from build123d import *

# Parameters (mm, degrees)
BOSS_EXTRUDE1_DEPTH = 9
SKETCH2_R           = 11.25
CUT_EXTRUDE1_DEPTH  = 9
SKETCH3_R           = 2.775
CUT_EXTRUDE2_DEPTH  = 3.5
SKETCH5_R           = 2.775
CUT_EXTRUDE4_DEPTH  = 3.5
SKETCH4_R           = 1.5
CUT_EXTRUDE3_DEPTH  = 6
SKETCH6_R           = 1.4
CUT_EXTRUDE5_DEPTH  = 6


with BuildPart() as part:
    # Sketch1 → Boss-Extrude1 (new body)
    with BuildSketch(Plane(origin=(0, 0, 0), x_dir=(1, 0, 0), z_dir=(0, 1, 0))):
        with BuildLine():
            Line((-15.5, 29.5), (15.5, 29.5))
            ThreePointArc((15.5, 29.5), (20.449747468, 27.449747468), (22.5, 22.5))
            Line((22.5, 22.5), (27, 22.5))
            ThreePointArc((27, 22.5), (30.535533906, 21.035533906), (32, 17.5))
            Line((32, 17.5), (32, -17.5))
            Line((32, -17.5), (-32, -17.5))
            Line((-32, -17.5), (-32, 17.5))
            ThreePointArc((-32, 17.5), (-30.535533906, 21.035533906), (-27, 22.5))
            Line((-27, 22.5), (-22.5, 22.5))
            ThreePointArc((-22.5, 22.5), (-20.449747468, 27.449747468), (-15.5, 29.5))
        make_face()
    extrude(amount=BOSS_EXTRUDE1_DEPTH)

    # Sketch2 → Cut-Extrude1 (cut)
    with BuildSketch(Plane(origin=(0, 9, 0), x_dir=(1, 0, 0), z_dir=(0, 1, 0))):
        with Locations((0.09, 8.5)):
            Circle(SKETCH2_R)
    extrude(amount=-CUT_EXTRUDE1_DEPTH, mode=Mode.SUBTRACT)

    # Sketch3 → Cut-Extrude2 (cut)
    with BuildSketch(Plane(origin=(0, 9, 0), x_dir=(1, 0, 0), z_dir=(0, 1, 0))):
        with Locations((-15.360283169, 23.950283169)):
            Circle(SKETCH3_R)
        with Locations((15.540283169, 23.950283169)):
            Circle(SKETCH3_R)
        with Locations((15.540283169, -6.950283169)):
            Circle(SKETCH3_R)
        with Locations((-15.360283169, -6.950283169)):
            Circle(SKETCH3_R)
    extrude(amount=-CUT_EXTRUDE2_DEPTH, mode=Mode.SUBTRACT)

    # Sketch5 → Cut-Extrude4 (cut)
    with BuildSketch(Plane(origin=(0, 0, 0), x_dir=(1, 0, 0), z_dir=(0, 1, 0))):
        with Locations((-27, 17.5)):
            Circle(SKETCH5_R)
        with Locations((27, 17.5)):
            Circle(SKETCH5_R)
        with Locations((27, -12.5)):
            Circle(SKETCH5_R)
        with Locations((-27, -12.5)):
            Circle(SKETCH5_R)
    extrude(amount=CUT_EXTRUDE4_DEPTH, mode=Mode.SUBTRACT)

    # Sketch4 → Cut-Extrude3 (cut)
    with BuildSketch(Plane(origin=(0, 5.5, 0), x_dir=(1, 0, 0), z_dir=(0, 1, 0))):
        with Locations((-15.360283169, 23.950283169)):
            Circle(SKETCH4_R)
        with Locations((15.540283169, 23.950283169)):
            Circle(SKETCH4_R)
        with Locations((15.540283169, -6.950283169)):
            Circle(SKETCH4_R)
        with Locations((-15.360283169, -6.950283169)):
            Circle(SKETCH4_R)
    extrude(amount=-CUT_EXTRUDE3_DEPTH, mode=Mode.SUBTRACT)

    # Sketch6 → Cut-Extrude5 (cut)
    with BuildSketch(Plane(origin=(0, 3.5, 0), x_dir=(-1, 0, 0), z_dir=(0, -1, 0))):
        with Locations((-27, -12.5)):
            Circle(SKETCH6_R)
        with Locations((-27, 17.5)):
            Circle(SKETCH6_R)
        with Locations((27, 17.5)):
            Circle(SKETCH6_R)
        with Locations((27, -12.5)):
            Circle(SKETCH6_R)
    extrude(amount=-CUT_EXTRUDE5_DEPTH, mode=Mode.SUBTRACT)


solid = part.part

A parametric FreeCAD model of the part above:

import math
import FreeCAD as App
import Part
import Sketcher
from FreeCAD import Vector
Q = App.Units.Quantity

doc = App.newDocument("Part")
params = doc.addObject("Spreadsheet::Sheet", "Params")
for row, (alias, value) in enumerate([
    ("sketch1_radius", "7 mm"),
    ("sketch1_radius2", "5 mm"),
    ("sketch1_width", "31 mm"),
    ("sketch1_width2", "64 mm"),
    ("sketch1_height", "35 mm"),
    ("pad1_length", "9 mm"),
    ("sketch2_diameter", "22.5 mm"),
    ("pocket1_length", "9 mm"),
    ("sketch3_diameter", "5.55 mm"),
    ("pocket2_length", "3.5 mm"),
    ("sketch4_diameter", "5.55 mm"),
    ("pocket3_length", "3.5 mm"),
    ("sketch5_diameter", "3 mm"),
    ("pocket4_length", "6 mm"),
    ("sketch6_diameter", "2.8 mm"),
    ("pocket5_length", "6 mm"),
], start=1):
    params.set(f"A{row}", alias)
    params.set(f"B{row}", "=" + value)
    params.setAlias(f"B{row}", alias)

body = doc.addObject("PartDesign::Body", "Body")

# Sketch on XZ plane
sketch1 = doc.addObject("Sketcher::SketchObject", "Sketch")
body.addObject(sketch1)
sketch1.AttachmentSupport = (doc.XZ_Plane, [""])
sketch1.MapMode = "FlatFace"
sketch1.addGeometry([
    Part.LineSegment(Vector(15.5, -29.5, 0), Vector(-15.5, -29.5, 0)),  # 0
    Part.ArcOfCircle(Part.Circle(Vector(-15.5, -22.5, 0), Vector(0, 0, 1), 7), math.radians(-180), math.radians(-90)),  # 1
    Part.LineSegment(Vector(-22.5, -22.5, 0), Vector(-27, -22.5, 0)),  # 2
    Part.ArcOfCircle(Part.Circle(Vector(-27, -17.5, 0), Vector(0, 0, 1), 5), math.radians(180), math.radians(270)),  # 3
    Part.LineSegment(Vector(-32, -17.5, 0), Vector(-32, 17.5, 0)),  # 4
    Part.LineSegment(Vector(-32, 17.5, 0), Vector(32, 17.5, 0)),  # 5
    Part.LineSegment(Vector(32, 17.5, 0), Vector(32, -17.5, 0)),  # 6
    Part.ArcOfCircle(Part.Circle(Vector(27, -17.5, 0), Vector(0, 0, 1), 5), math.radians(-90), math.radians(0)),  # 7
    Part.LineSegment(Vector(27, -22.5, 0), Vector(22.5, -22.5, 0)),  # 8
    Part.ArcOfCircle(Part.Circle(Vector(15.5, -22.5, 0), Vector(0, 0, 1), 7), math.radians(-90), math.radians(0)),  # 9
], False)
sketch1.addConstraint([
    Sketcher.Constraint("Tangent", 0, 2, 1, 2),
    Sketcher.Constraint("Coincident", 1, 1, 2, 1),
    Sketcher.Constraint("Tangent", 2, 2, 3, 2),
    Sketcher.Constraint("Tangent", 3, 1, 4, 1),
    Sketcher.Constraint("Coincident", 4, 2, 5, 1),
    Sketcher.Constraint("Coincident", 5, 2, 6, 1),
    Sketcher.Constraint("Tangent", 6, 2, 7, 2),
    Sketcher.Constraint("Tangent", 7, 1, 8, 1),
    Sketcher.Constraint("Coincident", 8, 2, 9, 2),
    Sketcher.Constraint("Tangent", 9, 1, 0, 1),
    Sketcher.Constraint("Horizontal", 0),
    Sketcher.Constraint("Horizontal", 2),
    Sketcher.Constraint("Vertical", 4),
    Sketcher.Constraint("Horizontal", 5),
    Sketcher.Constraint("Vertical", 6),
    Sketcher.Constraint("Horizontal", 8),
    Sketcher.Constraint("Equal", 3, 7),
    Sketcher.Constraint("Equal", 1, 9),
    Sketcher.Constraint("Symmetric", 3, 1, 5, 2, -1, 1),
    Sketcher.Constraint("Symmetric", 1, 1, 8, 2, -2),
    Sketcher.Constraint("Horizontal", 9, 3, 1, 1),
    Sketcher.Constraint("Radius", 1, Q("7 mm")),
    Sketcher.Constraint("Radius", 3, Q("5 mm")),
    Sketcher.Constraint("DistanceX", 0, 2, 0, 1, Q("31 mm")),
    Sketcher.Constraint("DistanceX", 5, 1, 5, 2, Q("64 mm")),
    Sketcher.Constraint("DistanceY", 4, 1, 4, 2, Q("35 mm")),
])
sketch1.setExpression("Constraints[21]", "Params.sketch1_radius")
sketch1.setExpression("Constraints[22]", "Params.sketch1_radius2")
sketch1.setExpression("Constraints[23]", "Params.sketch1_width")
sketch1.setExpression("Constraints[24]", "Params.sketch1_width2")
sketch1.setExpression("Constraints[25]", "Params.sketch1_height")
pad1 = doc.addObject("PartDesign::Pad", "Pad")
body.addObject(pad1)
pad1.Profile = sketch1
pad1.setExpression("Length", "Params.pad1_length")
pad1.Reversed = True

# Sketch on XZ plane
sketch2 = doc.addObject("Sketcher::SketchObject", "Sketch001")
body.addObject(sketch2)
sketch2.AttachmentSupport = (doc.XZ_Plane, [""])
sketch2.MapMode = "FlatFace"
sketch2.AttachmentOffset = App.Placement(Vector(0, 0, -9), App.Rotation())
sketch2.addGeometry(Part.Circle(Vector(0, -8, 0), Vector(0, 0, 1), 11), False)
sketch2.addConstraint([
    Sketcher.Constraint("Diameter", 0, Q("22.5 mm")),
    Sketcher.Constraint("DistanceY", 0, 3, -1, 1, Q("8.5 mm")),
    Sketcher.Constraint("DistanceX", -1, 1, 0, 3, Q("0.09 mm")),
])
sketch2.setExpression("Constraints[0]", "Params.sketch2_diameter")
pocket1 = doc.addObject("PartDesign::Pocket", "Pocket")
body.addObject(pocket1)
pocket1.Profile = sketch2
pocket1.setExpression("Length", "Params.pocket1_length")
pocket1.Reversed = True

# Sketch on XZ plane
sketch3 = doc.addObject("Sketcher::SketchObject", "Sketch002")
body.addObject(sketch3)
sketch3.AttachmentSupport = (doc.XZ_Plane, [""])
sketch3.MapMode = "FlatFace"
sketch3.AttachmentOffset = App.Placement(Vector(0, 0, -9), App.Rotation())
sketch3.addGeometry([
    Part.Circle(Vector(-15.4, -24, 0), Vector(0, 0, 1), 2.8),
    Part.Circle(Vector(15.5, -24, 0), Vector(0, 0, 1), 2.8),
    Part.Circle(Vector(15.5, 7, 0), Vector(0, 0, 1), 2.8),
    Part.Circle(Vector(-15.4, 7, 0), Vector(0, 0, 1), 2.8),
], False)
sketch3.addConstraint([
    Sketcher.Constraint("Equal", 0, 1),
    Sketcher.Constraint("Equal", 1, 2),
    Sketcher.Constraint("Equal", 2, 3),
    Sketcher.Constraint("Horizontal", 0, 3, 1, 3),
    Sketcher.Constraint("Horizontal", 2, 3, 3, 3),
    Sketcher.Constraint("Vertical", 1, 3, 2, 3),
    Sketcher.Constraint("Vertical", 0, 3, 3, 3),
    Sketcher.Constraint("Diameter", 0, Q("5.55 mm")),
    Sketcher.Constraint("DistanceX", 0, 3, -1, 1, Q("15.360283 mm")),
    Sketcher.Constraint("DistanceY", 0, 3, -1, 1, Q("23.950283 mm")),
    Sketcher.Constraint("DistanceX", -1, 1, 1, 3, Q("15.540283 mm")),
    Sketcher.Constraint("DistanceY", -1, 1, 2, 3, Q("6.950283 mm")),
])
sketch3.setExpression("Constraints[7]", "Params.sketch3_diameter")
pocket2 = doc.addObject("PartDesign::Pocket", "Pocket001")
body.addObject(pocket2)
pocket2.Profile = sketch3
pocket2.setExpression("Length", "Params.pocket2_length")
pocket2.Reversed = True

# Sketch on XZ plane
sketch4 = doc.addObject("Sketcher::SketchObject", "Sketch003")
body.addObject(sketch4)
sketch4.AttachmentSupport = (doc.XZ_Plane, [""])
sketch4.MapMode = "FlatFace"
sketch4.addGeometry([
    Part.Circle(Vector(-27, -17.5, 0), Vector(0, 0, 1), 2.8),
    Part.Circle(Vector(27, -17.5, 0), Vector(0, 0, 1), 2.8),
    Part.Circle(Vector(27, 12.5, 0), Vector(0, 0, 1), 2.8),
    Part.Circle(Vector(-27, 12.5, 0), Vector(0, 0, 1), 2.8),
], False)
sketch4.addConstraint([
    Sketcher.Constraint("Equal", 0, 1),
    Sketcher.Constraint("Equal", 1, 2),
    Sketcher.Constraint("Equal", 2, 3),
    Sketcher.Constraint("Symmetric", 0, 3, 1, 3, -2),
    Sketcher.Constraint("Symmetric", 2, 3, 3, 3, -2),
    Sketcher.Constraint("Vertical", 1, 3, 2, 3),
    Sketcher.Constraint("Diameter", 0, Q("5.55 mm")),
    Sketcher.Constraint("DistanceX", 0, 3, -1, 1, Q("27 mm")),
    Sketcher.Constraint("DistanceY", 1, 3, 2, 3, Q("30 mm")),
    Sketcher.Constraint("DistanceY", 0, 3, -1, 1, Q("17.5 mm")),
])
sketch4.setExpression("Constraints[6]", "Params.sketch4_diameter")
pocket3 = doc.addObject("PartDesign::Pocket", "Pocket002")
body.addObject(pocket3)
pocket3.Profile = sketch4
pocket3.setExpression("Length", "Params.pocket3_length")

# Sketch on XZ plane
sketch5 = doc.addObject("Sketcher::SketchObject", "Sketch004")
body.addObject(sketch5)
sketch5.AttachmentSupport = (doc.XZ_Plane, [""])
sketch5.MapMode = "FlatFace"
sketch5.AttachmentOffset = App.Placement(Vector(0, 0, -5.5), App.Rotation())
sketch5.addGeometry([
    Part.Circle(Vector(-15.4, -24, 0), Vector(0, 0, 1), 1.5),
    Part.Circle(Vector(15.5, -24, 0), Vector(0, 0, 1), 1.5),
    Part.Circle(Vector(15.5, 7, 0), Vector(0, 0, 1), 1.5),
    Part.Circle(Vector(-15.4, 7, 0), Vector(0, 0, 1), 1.5),
], False)
sketch5.addConstraint([
    Sketcher.Constraint("Equal", 0, 1),
    Sketcher.Constraint("Equal", 1, 2),
    Sketcher.Constraint("Equal", 2, 3),
    Sketcher.Constraint("Horizontal", 0, 3, 1, 3),
    Sketcher.Constraint("Horizontal", 2, 3, 3, 3),
    Sketcher.Constraint("Vertical", 1, 3, 2, 3),
    Sketcher.Constraint("Vertical", 0, 3, 3, 3),
    Sketcher.Constraint("Diameter", 0, Q("3 mm")),
    Sketcher.Constraint("DistanceX", 0, 3, -1, 1, Q("15.360283 mm")),
    Sketcher.Constraint("DistanceY", 0, 3, -1, 1, Q("23.950283 mm")),
    Sketcher.Constraint("DistanceX", -1, 1, 1, 3, Q("15.540283 mm")),
    Sketcher.Constraint("DistanceY", -1, 1, 2, 3, Q("6.950283 mm")),
])
sketch5.setExpression("Constraints[7]", "Params.sketch5_diameter")
pocket4 = doc.addObject("PartDesign::Pocket", "Pocket003")
body.addObject(pocket4)
pocket4.Profile = sketch5
pocket4.setExpression("Length", "Params.pocket4_length")
pocket4.Reversed = True

# Sketch on XZ plane
sketch6 = doc.addObject("Sketcher::SketchObject", "Sketch005")
body.addObject(sketch6)
sketch6.AttachmentSupport = (doc.XZ_Plane, [""])
sketch6.MapMode = "FlatFace"
sketch6.AttachmentOffset = App.Placement(Vector(0, 0, -3.5), App.Rotation())
sketch6.addGeometry([
    Part.Circle(Vector(27, 12.5, 0), Vector(0, 0, 1), 1.4),
    Part.Circle(Vector(27, -17.5, 0), Vector(0, 0, 1), 1.4),
    Part.Circle(Vector(-27, -17.5, 0), Vector(0, 0, 1), 1.4),
    Part.Circle(Vector(-27, 12.5, 0), Vector(0, 0, 1), 1.4),
], False)
sketch6.addConstraint([
    Sketcher.Constraint("Equal", 0, 1),
    Sketcher.Constraint("Equal", 1, 2),
    Sketcher.Constraint("Equal", 2, 3),
    Sketcher.Constraint("Symmetric", 1, 3, 2, 3, -2),
    Sketcher.Constraint("Symmetric", 0, 3, 3, 3, -2),
    Sketcher.Constraint("Vertical", 0, 3, 1, 3),
    Sketcher.Constraint("Diameter", 0, Q("2.8 mm")),
    Sketcher.Constraint("DistanceX", -1, 1, 0, 3, Q("27 mm")),
    Sketcher.Constraint("DistanceY", 1, 3, 0, 3, Q("30 mm")),
    Sketcher.Constraint("DistanceY", -1, 1, 0, 3, Q("12.5 mm")),
])
sketch6.setExpression("Constraints[6]", "Params.sketch6_diameter")
pocket5 = doc.addObject("PartDesign::Pocket", "Pocket004")
body.addObject(pocket5)
pocket5.Profile = sketch6
pocket5.setExpression("Length", "Params.pocket5_length")

doc.recompute()
